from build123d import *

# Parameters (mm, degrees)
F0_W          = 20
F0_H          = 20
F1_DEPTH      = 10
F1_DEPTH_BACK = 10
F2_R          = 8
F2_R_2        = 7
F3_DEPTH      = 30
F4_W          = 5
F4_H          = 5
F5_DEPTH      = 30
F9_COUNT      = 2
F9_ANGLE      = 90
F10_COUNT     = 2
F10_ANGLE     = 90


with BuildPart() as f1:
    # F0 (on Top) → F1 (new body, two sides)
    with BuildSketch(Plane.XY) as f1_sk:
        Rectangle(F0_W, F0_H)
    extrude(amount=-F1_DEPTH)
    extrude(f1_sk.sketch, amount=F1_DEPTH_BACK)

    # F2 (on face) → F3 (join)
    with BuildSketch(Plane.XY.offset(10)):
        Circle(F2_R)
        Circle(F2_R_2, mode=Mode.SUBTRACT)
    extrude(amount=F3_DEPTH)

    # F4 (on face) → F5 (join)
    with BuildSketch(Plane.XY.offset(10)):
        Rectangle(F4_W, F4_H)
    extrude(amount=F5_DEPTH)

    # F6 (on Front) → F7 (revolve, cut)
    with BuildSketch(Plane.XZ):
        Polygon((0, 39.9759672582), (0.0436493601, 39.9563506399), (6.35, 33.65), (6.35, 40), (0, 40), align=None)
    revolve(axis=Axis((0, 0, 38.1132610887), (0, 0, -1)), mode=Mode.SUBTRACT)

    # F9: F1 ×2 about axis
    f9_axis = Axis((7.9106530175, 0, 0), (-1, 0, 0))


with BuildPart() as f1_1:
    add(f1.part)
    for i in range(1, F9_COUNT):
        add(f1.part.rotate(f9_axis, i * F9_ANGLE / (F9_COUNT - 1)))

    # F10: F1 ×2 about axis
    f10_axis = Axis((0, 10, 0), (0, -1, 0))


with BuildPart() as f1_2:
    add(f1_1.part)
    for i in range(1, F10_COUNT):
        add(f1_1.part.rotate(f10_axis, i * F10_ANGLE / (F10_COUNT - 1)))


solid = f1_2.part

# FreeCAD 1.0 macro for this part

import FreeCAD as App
import Part
import Sketcher

V = App.Vector
Q = App.Units.Quantity


def add_polygon(sketch, points):
    """Adds a closed chain of lines whose ends are joined by coincident constraints."""
    first, n = sketch.GeometryCount, len(points)
    for a, b in zip(points, points[1:] + points[:1]):
        sketch.addGeometry(Part.LineSegment(App.Vector(*a, 0), App.Vector(*b, 0)), False)
    for i in range(n):
        sketch.addConstraint(Sketcher.Constraint("Coincident", first + i, 2, first + (i + 1) % n, 1))

doc = App.newDocument("Part")
body = doc.addObject("PartDesign::Body", "Body")

# Sketch on XY plane
sketch1 = body.newObject("Sketcher::SketchObject", "Sketch")
sketch1.AttachmentSupport = (doc.getObject("XY_Plane"), [""])
sketch1.MapMode = "FlatFace"
add_polygon(sketch1, [(-10, 10), (-10, -10), (10, -10), (10, 10)])  # lines 0-3
sketch1.addConstraint([
    Sketcher.Constraint("Vertical", 0),
    Sketcher.Constraint("Horizontal", 1),
    Sketcher.Constraint("Vertical", 2),
    Sketcher.Constraint("Horizontal", 3),
    Sketcher.Constraint("Symmetric", 0, 2, 2, 2, -1, 1),
    Sketcher.Constraint("Equal", 3, 0),
    Sketcher.Constraint("DistanceX", 1, 1, 1, 2, 20.0),
])
pad1 = body.newObject("PartDesign::Pad", "Pad")
pad1.Profile = sketch1
pad1.Type = "TwoLengths"
pad1.Length = 10
pad1.Length2 = 10
pad1.Reversed = True

# Sketch on XY plane
sketch2 = body.newObject("Sketcher::SketchObject", "Sketch001")
sketch2.AttachmentSupport = (doc.getObject("XY_Plane"), [""])
sketch2.MapMode = "FlatFace"
sketch2.AttachmentOffset = App.Placement(V(0, 0, 10), App.Rotation())
sketch2.addGeometry([
    Part.Circle(V(0, 0, 0), V(0, 0, 1), 8),
    Part.Circle(V(0, 0, 0), V(0, 0, 1), 7),
], False)
sketch2.addConstraint([
    Sketcher.Constraint("Coincident", 0, 3, -1, 1),
    Sketcher.Constraint("Coincident", 1, 3, -1, 1),
    Sketcher.Constraint("Diameter", 0, 16.0),
    Sketcher.Constraint("Diameter", 1, 14.0),
])
pad2 = body.newObject("PartDesign::Pad", "Pad001")
pad2.Profile = sketch2
pad2.Length = 30

# Sketch on XY plane
sketch3 = body.newObject("Sketcher::SketchObject", "Sketch002")
sketch3.AttachmentSupport = (doc.getObject("XY_Plane"), [""])
sketch3.MapMode = "FlatFace"
sketch3.AttachmentOffset = App.Placement(V(0, 0, 10), App.Rotation())
add_polygon(sketch3, [(-2, 2), (-2, -2), (2, -2), (2, 2)])  # lines 0-3
sketch3.addConstraint([
    Sketcher.Constraint("Vertical", 0),
    Sketcher.Constraint("Horizontal", 1),
    Sketcher.Constraint("Vertical", 2),
    Sketcher.Constraint("Horizontal", 3),
    Sketcher.Constraint("Symmetric", 0, 2, 2, 2, -1, 1),
    Sketcher.Constraint("Equal", 3, 0),
    Sketcher.Constraint("DistanceX", 1, 1, 1, 2, 5.0),
])
pad3 = body.newObject("PartDesign::Pad", "Pad002")
pad3.Profile = sketch3
pad3.Length = 30

# Sketch on XZ plane
sketch4 = body.newObject("Sketcher::SketchObject", "Sketch003")
sketch4.AttachmentSupport = (doc.getObject("XZ_Plane"), [""])
sketch4.MapMode = "FlatFace"
add_polygon(sketch4, [(0, 39.976), (0.044, 39.956), (6.35, 33.65), (6.35, 40), (0, 40)])  # lines 0-4
sketch4.addConstraint([
    Sketcher.Constraint("Vertical", 2),
    Sketcher.Constraint("Horizontal", 3),
    Sketcher.Constraint("Vertical", 4),
    Sketcher.Constraint("PointOnObject", 3, 2, -2),
    Sketcher.Constraint("Equal", 3, 2),
    Sketcher.Constraint("Angle", 1, Q("-45 deg")),
    Sketcher.Constraint("DistanceY", -1, 1, 2, 2, 40.0),
    Sketcher.Constraint("DistanceX", 3, 2, 3, 1, 6.35),
    Sketcher.Constraint("DistanceY", 4, 2, 4, 1, 0.024033),
    Sketcher.Constraint("DistanceX", -1, 1, 0, 2, 0.043649),
])
groove = body.newObject("PartDesign::Groove", "Groove")
groove.Profile = sketch4
groove.ReferenceAxis = (sketch4, ["V_Axis"])
groove.Angle = 360
body2 = doc.addObject("PartDesign::Body", "Body001")
doc.recompute()

body2.BaseFeature = body
doc.recompute()

body.Placement = App.Placement(V(0, 0, 0), App.Rotation(V(-1, 0, 0), 90))
boolean = body2.newObject("PartDesign::Boolean", "Boolean")
boolean.Type = "Fuse"
boolean.addObjects([body])
body3 = doc.addObject("PartDesign::Body", "Body002")
doc.recompute()

body3.BaseFeature = body2
doc.recompute()

body2.Placement = App.Placement(V(0, 0, 0), App.Rotation(V(0, -1, 0), 90))
boolean2 = body3.newObject("PartDesign::Boolean", "Boolean001")
boolean2.Type = "Fuse"
boolean2.addObjects([body2])

doc.recompute()
